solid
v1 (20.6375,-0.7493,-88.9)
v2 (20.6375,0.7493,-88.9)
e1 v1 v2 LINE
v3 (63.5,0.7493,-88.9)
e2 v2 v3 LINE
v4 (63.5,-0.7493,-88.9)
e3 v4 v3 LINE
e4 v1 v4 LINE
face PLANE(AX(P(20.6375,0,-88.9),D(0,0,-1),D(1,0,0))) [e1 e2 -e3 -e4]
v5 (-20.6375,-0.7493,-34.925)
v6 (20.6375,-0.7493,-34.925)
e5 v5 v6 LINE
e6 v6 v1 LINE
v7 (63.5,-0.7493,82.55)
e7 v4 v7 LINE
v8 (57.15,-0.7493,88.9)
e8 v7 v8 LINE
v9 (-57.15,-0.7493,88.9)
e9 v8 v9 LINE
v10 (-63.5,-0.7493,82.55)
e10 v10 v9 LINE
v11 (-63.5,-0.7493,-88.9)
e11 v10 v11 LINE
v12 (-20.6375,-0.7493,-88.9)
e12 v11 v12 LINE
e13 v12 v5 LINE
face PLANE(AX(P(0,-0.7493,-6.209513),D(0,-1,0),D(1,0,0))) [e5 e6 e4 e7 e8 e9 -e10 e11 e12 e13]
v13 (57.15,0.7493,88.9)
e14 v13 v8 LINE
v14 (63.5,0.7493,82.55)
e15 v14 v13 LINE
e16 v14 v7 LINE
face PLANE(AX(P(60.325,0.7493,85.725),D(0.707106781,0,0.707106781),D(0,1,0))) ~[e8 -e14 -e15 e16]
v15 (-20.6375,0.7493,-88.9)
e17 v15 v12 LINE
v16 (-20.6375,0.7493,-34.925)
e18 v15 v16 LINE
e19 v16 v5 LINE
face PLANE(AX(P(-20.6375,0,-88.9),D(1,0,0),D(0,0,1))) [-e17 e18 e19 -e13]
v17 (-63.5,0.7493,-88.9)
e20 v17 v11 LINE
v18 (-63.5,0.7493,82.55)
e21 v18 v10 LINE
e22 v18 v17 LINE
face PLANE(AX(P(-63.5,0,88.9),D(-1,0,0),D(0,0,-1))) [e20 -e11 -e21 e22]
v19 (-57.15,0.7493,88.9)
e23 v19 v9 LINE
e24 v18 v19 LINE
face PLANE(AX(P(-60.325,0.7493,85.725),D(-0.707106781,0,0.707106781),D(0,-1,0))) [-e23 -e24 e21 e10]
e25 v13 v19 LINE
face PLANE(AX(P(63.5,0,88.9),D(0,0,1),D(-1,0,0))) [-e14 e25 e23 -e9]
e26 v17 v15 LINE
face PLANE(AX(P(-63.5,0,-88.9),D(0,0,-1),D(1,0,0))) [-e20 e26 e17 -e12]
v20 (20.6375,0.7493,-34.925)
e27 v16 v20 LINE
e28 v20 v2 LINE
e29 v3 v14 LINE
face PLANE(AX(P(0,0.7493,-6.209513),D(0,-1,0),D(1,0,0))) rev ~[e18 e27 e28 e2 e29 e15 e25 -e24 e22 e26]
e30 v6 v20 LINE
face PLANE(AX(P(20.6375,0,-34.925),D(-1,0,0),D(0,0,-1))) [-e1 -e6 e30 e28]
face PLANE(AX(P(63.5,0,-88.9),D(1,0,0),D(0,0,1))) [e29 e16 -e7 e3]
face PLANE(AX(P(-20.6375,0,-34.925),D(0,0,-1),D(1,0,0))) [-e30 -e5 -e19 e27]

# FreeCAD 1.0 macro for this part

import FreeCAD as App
import Part
import Sketcher
Q = App.Units.Quantity


def edges_at(feature, points):
    """Names of the edges that pass closest to the given points."""
    edges = feature.Shape.Edges
    near = lambda p: min(range(len(edges)), key=lambda i: edges[i].distToShape(Part.Vertex(*p))[0])
    return sorted({f"Edge{near(p) + 1}" for p in points})


def add_polygon(sketch, points):
    """Adds a closed chain of lines whose ends are joined by coincident constraints."""
    first, n = sketch.GeometryCount, len(points)
    for a, b in zip(points, points[1:] + points[:1]):
        sketch.addGeometry(Part.LineSegment(App.Vector(*a, 0), App.Vector(*b, 0)), False)
    for i in range(n):
        sketch.addConstraint(Sketcher.Constraint("Coincident", first + i, 2, first + (i + 1) % n, 1))

doc = App.newDocument("Part")
params = doc.addObject("Spreadsheet::Sheet", "Params")
for row, (alias, value) in enumerate([
    ("sketch1_width", "5 in"),
    ("sketch1_height", "7 in"),
    ("sketch1_width2", "1.6875 in"),
    ("sketch1_height2", "2.125 in"),
    ("pad1_length", "0.059 in"),
    ("chamfer_size", "0.25 in"),
], start=1):
    params.set(f"A{row}", alias)
    params.set(f"B{row}", "=" + value)
    params.setAlias(f"B{row}", alias)

body = doc.addObject("PartDesign::Body", "Body")

# Sketch on XZ plane
sketch1 = body.newObject("Sketcher::SketchObject", "Sketch")
sketch1.AttachmentSupport = (doc.getObject("XZ_Plane"), [""])
sketch1.MapMode = "FlatFace"
add_polygon(sketch1, [(64, -89), (64, 89), (-64, 89), (-64, -89), (-21, -89), (-21, -35), (21, -35), (21, -89)])  # lines 0-7
sketch1.addConstraint(Sketcher.Constraint("Vertical", 0))
sketch1.addConstraint(Sketcher.Constraint("Horizontal", 1))
sketch1.addConstraint(Sketcher.Constraint("Vertical", 2))
sketch1.addConstraint(Sketcher.Constraint("Horizontal", 3))
sketch1.addConstraint(Sketcher.Constraint("Vertical", 4))
sketch1.addConstraint(Sketcher.Constraint("Horizontal", 5))
sketch1.addConstraint(Sketcher.Constraint("Vertical", 6))
sketch1.addConstraint(Sketcher.Constraint("Horizontal", 7))
sketch1.addConstraint(Sketcher.Constraint("Symmetric", 0, 2, 2, 2, -1, 1))
sketch1.addConstraint(Sketcher.Constraint("Symmetric", 3, 2, 6, 2, -2))
sketch1.addConstraint(Sketcher.Constraint("DistanceX", 1, 2, 1, 1, Q("5 in")))
sketch1.addConstraint(Sketcher.Constraint("DistanceY", 0, 1, 0, 2, Q("7 in")))
sketch1.addConstraint(Sketcher.Constraint("DistanceX", 3, 1, 3, 2, Q("1.6875 in")))
sketch1.addConstraint(Sketcher.Constraint("DistanceY", 4, 1, 4, 2, Q("2.125 in")))
sketch1.setExpression("Constraints[18]", "Params.sketch1_width")
sketch1.setExpression("Constraints[19]", "Params.sketch1_height")
sketch1.setExpression("Constraints[20]", "Params.sketch1_width2")
sketch1.setExpression("Constraints[21]", "Params.sketch1_height2")
pad1 = body.newObject("PartDesign::Pad", "Pad")
pad1.Profile = sketch1
pad1.setExpression("Length", "Params.pad1_length")
pad1.Midplane = True
doc.recompute()

chamfer = body.newObject("PartDesign::Chamfer", "Chamfer")
chamfer.Base = (pad1, edges_at(pad1, [(63.5, 0, 88.9), (-63.5, 0, 88.9)]))
chamfer.setExpression("Size", "Params.chamfer_size")

doc.recompute()
